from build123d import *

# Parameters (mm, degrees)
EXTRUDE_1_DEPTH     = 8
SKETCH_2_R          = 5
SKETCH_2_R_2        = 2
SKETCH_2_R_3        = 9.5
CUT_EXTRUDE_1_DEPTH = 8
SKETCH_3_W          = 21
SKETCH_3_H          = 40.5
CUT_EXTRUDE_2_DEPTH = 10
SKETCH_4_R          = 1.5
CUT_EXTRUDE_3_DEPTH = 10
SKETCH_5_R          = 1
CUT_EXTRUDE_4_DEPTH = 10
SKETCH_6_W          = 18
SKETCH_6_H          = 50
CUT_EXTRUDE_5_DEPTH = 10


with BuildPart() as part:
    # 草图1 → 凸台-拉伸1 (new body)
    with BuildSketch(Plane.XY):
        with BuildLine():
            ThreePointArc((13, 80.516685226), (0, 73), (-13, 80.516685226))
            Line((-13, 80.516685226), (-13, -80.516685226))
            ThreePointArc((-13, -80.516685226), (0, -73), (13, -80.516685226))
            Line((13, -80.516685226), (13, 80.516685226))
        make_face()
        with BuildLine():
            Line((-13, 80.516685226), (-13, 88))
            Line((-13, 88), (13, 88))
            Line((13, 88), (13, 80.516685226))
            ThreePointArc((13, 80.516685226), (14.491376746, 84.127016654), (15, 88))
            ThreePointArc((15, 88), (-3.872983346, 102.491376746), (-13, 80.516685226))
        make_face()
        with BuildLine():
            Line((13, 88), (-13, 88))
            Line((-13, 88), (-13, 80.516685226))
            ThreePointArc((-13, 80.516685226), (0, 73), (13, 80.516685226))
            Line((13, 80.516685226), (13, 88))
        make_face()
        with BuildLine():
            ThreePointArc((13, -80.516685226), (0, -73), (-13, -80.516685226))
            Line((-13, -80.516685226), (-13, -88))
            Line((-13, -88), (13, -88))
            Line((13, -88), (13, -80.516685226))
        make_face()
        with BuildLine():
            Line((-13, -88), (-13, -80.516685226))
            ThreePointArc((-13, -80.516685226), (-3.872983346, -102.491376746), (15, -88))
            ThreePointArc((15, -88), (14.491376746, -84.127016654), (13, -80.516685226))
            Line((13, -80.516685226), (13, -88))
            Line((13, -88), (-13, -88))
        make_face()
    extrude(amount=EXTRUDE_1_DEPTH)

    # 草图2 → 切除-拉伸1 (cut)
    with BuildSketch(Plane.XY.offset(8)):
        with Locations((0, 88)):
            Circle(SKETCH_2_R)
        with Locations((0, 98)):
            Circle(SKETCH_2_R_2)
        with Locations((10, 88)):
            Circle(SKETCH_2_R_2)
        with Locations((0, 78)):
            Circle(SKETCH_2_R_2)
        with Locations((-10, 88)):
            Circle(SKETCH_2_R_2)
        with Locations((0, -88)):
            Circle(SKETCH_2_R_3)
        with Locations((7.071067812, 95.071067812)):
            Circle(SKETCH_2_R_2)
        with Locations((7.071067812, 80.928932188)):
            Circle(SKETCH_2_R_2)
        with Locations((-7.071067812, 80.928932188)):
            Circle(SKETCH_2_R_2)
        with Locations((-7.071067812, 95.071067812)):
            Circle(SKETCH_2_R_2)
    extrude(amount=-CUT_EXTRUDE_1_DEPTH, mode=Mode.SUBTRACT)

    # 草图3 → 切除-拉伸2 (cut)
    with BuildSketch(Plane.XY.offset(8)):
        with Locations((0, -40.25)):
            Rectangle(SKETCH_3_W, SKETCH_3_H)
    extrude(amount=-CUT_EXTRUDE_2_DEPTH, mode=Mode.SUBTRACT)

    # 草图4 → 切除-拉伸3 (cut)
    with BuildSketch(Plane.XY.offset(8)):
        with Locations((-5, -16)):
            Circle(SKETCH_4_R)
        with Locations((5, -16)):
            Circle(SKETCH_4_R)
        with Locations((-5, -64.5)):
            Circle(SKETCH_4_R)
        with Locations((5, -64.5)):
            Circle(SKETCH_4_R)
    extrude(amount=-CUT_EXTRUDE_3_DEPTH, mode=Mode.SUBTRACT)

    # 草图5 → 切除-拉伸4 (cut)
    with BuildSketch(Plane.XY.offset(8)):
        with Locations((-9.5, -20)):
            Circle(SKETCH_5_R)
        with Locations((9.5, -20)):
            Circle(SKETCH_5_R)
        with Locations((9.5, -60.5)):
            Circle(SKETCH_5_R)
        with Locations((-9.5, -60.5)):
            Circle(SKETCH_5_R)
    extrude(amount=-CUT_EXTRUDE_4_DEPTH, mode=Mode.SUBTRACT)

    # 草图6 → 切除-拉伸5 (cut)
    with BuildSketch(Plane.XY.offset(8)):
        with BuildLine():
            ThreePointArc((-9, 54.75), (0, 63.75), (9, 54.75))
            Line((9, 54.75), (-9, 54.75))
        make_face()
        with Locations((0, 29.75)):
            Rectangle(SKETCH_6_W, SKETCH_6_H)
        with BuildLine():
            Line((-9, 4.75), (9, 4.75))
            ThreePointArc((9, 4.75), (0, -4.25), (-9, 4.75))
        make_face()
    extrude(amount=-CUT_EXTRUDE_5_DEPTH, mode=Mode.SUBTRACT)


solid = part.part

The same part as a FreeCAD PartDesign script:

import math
import FreeCAD as App
import Part
import Sketcher
from FreeCAD import Vector

doc = App.newDocument("Part")
body = doc.addObject("PartDesign::Body", "Body")

sketch1 = doc.addObject("Sketcher::SketchObject", "Sketch")
body.addObject(sketch1)
sketch1.AttachmentSupport = (doc.XY_Plane, [""])
sketch1.MapMode = "FlatFace"
sketch1.addGeometry(Part.LineSegment(Vector(-13, 81, 0), Vector(-13, -81, 0)), False)
sketch1.addGeometry(Part.ArcOfCircle(Part.Circle(Vector(0, -88, 0), Vector(0, 0, 1), 15), math.radians(150), math.radians(360)), False)
sketch1.addGeometry(Part.ArcOfCircle(Part.Circle(Vector(0, -88, 0), Vector(0, 0, 1), 15), math.radians(0), math.radians(30)), False)
sketch1.addGeometry(Part.LineSegment(Vector(13, -81, 0), Vector(13, 81, 0)), False)
sketch1.addGeometry(Part.ArcOfCircle(Part.Circle(Vector(0, 88, 0), Vector(0, 0, 1), 15), math.radians(-30), math.radians(0)), False)
sketch1.addGeometry(Part.ArcOfCircle(Part.Circle(Vector(0, 88, 0), Vector(0, 0, 1), 15), math.radians(0), math.radians(210)), False)
sketch1.addConstraint(Sketcher.Constraint("Coincident", 0, 2, 1, 1))
sketch1.addConstraint(Sketcher.Constraint("Tangent", 1, 2, 2, 1))
sketch1.addConstraint(Sketcher.Constraint("Coincident", 2, 2, 3, 1))
sketch1.addConstraint(Sketcher.Constraint("Coincident", 3, 2, 4, 1))
sketch1.addConstraint(Sketcher.Constraint("Tangent", 4, 2, 5, 1))
sketch1.addConstraint(Sketcher.Constraint("Coincident", 5, 2, 0, 1))
sketch1.addConstraint(Sketcher.Constraint("Vertical", 0))
sketch1.addConstraint(Sketcher.Constraint("Vertical", 3))
sketch1.addConstraint(Sketcher.Constraint("Equal", 1, 2))
sketch1.addConstraint(Sketcher.Constraint("Equal", 2, 4))
sketch1.addConstraint(Sketcher.Constraint("Equal", 4, 5))
sketch1.addConstraint(Sketcher.Constraint("Symmetric", 1, 3, 4, 3, -1, 1))
sketch1.addConstraint(Sketcher.Constraint("Symmetric", 0, 2, 2, 2, -2))
sketch1.addConstraint(Sketcher.Constraint("Horizontal", 2, 3, 1, 2))
sketch1.addConstraint(Sketcher.Constraint("Horizontal", 5, 3, 4, 2))
sketch1.addConstraint(Sketcher.Constraint("Radius", 1, 15.0))
sketch1.addConstraint(Sketcher.Constraint("DistanceY", 1, 3, -1, 1, 88.0))
sketch1.addConstraint(Sketcher.Constraint("DistanceX", 0, 2, -1, 1, 13.0))
pad1 = doc.addObject("PartDesign::Pad", "Pad")
body.addObject(pad1)
pad1.Profile = sketch1
pad1.Length = 8

sketch2 = doc.addObject("Sketcher::SketchObject", "Sketch001")
body.addObject(sketch2)
sketch2.AttachmentSupport = (doc.XY_Plane, [""])
sketch2.MapMode = "FlatFace"
sketch2.AttachmentOffset = App.Placement(Vector(0, 0, 8), App.Rotation())
sketch2.addGeometry(Part.Circle(Vector(0, 88, 0), Vector(0, 0, 1), 5), False)
sketch2.addGeometry(Part.Circle(Vector(0, 98, 0), Vector(0, 0, 1), 2), False)
sketch2.addGeometry(Part.Circle(Vector(10, 88, 0), Vector(0, 0, 1), 2), False)
sketch2.addGeometry(Part.Circle(Vector(0, 78, 0), Vector(0, 0, 1), 2), False)
sketch2.addGeometry(Part.Circle(Vector(-10, 88, 0), Vector(0, 0, 1), 2), False)
sketch2.addGeometry(Part.Circle(Vector(0, -88, 0), Vector(0, 0, 1), 9.5), False)
sketch2.addGeometry(Part.Circle(Vector(7.1, 95.1, 0), Vector(0, 0, 1), 2), False)
sketch2.addGeometry(Part.Circle(Vector(7.1, 80.9, 0), Vector(0, 0, 1), 2), False)
sketch2.addGeometry(Part.Circle(Vector(-7.1, 80.9, 0), Vector(0, 0, 1), 2), False)
sketch2.addGeometry(Part.Circle(Vector(-7.1, 95.1, 0), Vector(0, 0, 1), 2), False)
sketch2.addConstraint(Sketcher.Constraint("Equal", 1, 2))
sketch2.addConstraint(Sketcher.Constraint("Equal", 2, 3))
sketch2.addConstraint(Sketcher.Constraint("Equal", 3, 4))
sketch2.addConstraint(Sketcher.Constraint("Equal", 4, 6))
sketch2.addConstraint(Sketcher.Constraint("Equal", 6, 7))
sketch2.addConstraint(Sketcher.Constraint("Equal", 7, 8))
sketch2.addConstraint(Sketcher.Constraint("Equal", 8, 9))
sketch2.addConstraint(Sketcher.Constraint("Symmetric", 0, 3, 5, 3, -1, 1))
sketch2.addConstraint(Sketcher.Constraint("Symmetric", 2, 3, 4, 3, -2))
sketch2.addConstraint(Sketcher.Constraint("Symmetric", 7, 3, 8, 3, -2))
sketch2.addConstraint(Sketcher.Constraint("Symmetric", 6, 3, 9, 3, -2))
sketch2.addConstraint(Sketcher.Constraint("PointOnObject", 0, 3, -2))
sketch2.addConstraint(Sketcher.Constraint("PointOnObject", 1, 3, -2))
sketch2.addConstraint(Sketcher.Constraint("PointOnObject", 3, 3, -2))
sketch2.addConstraint(Sketcher.Constraint("Horizontal", 0, 3, 2, 3))
sketch2.addConstraint(Sketcher.Constraint("Vertical", 6, 3, 7, 3))
sketch2.addConstraint(Sketcher.Constraint("Diameter", 0, 10.0))
sketch2.addConstraint(Sketcher.Constraint("Diameter", 1, 4.0))
sketch2.addConstraint(Sketcher.Constraint("Diameter", 5, 19.0))
sketch2.addConstraint(Sketcher.Constraint("DistanceY", -1, 1, 0, 3, 88.0))
sketch2.addConstraint(Sketcher.Constraint("DistanceY", -1, 1, 1, 3, 98.0))
sketch2.addConstraint(Sketcher.Constraint("DistanceX", -1, 1, 2, 3, 10.0))
sketch2.addConstraint(Sketcher.Constraint("DistanceY", -1, 1, 3, 3, 78.0))
sketch2.addConstraint(Sketcher.Constraint("DistanceX", -1, 1, 6, 3, 7.071068))
sketch2.addConstraint(Sketcher.Constraint("DistanceY", -1, 1, 6, 3, 95.071068))
sketch2.addConstraint(Sketcher.Constraint("DistanceY", -1, 1, 7, 3, 80.928932))
pocket1 = doc.addObject("PartDesign::Pocket", "Pocket")
body.addObject(pocket1)
pocket1.Profile = sketch2
pocket1.Length = 8

sketch3 = doc.addObject("Sketcher::SketchObject", "Sketch002")
body.addObject(sketch3)
sketch3.AttachmentSupport = (doc.XY_Plane, [""])
sketch3.MapMode = "FlatFace"
sketch3.AttachmentOffset = App.Placement(Vector(0, 0, 8), App.Rotation())
sketch3.addGeometry(Part.LineSegment(Vector(-10, -20, 0), Vector(-10, -60, 0)), False)
sketch3.addGeometry(Part.LineSegment(Vector(-10, -60, 0), Vector(10, -60, 0)), False)
sketch3.addGeometry(Part.LineSegment(Vector(10, -60, 0), Vector(10, -20, 0)), False)
sketch3.addGeometry(Part.LineSegment(Vector(10, -20, 0), Vector(-10, -20, 0)), False)
sketch3.addConstraint(Sketcher.Constraint("Coincident", 0, 2, 1, 1))
sketch3.addConstraint(Sketcher.Constraint("Coincident", 1, 2, 2, 1))
sketch3.addConstraint(Sketcher.Constraint("Coincident", 2, 2, 3, 1))
sketch3.addConstraint(Sketcher.Constraint("Coincident", 3, 2, 0, 1))
sketch3.addConstraint(Sketcher.Constraint("Vertical", 0))
sketch3.addConstraint(Sketcher.Constraint("Horizontal", 1))
sketch3.addConstraint(Sketcher.Constraint("Vertical", 2))
sketch3.addConstraint(Sketcher.Constraint("Horizontal", 3))
sketch3.addConstraint(Sketcher.Constraint("DistanceX", 1, 1, 1, 2, 21.0))
sketch3.addConstraint(Sketcher.Constraint("DistanceY", 0, 2, 0, 1, 40.5))
sketch3.addConstraint(Sketcher.Constraint("DistanceY", 2, 2, -1, 1, 20.0))
sketch3.addConstraint(Sketcher.Constraint("DistanceX", 0, 2, -1, 1, 10.5))
pocket2 = doc.addObject("PartDesign::Pocket", "Pocket001")
body.addObject(pocket2)
pocket2.Profile = sketch3
pocket2.Length = 10

sketch4 = doc.addObject("Sketcher::SketchObject", "Sketch003")
body.addObject(sketch4)
sketch4.AttachmentSupport = (doc.XY_Plane, [""])
sketch4.MapMode = "FlatFace"
sketch4.AttachmentOffset = App.Placement(Vector(0, 0, 8), App.Rotation())
sketch4.addGeometry(Part.Circle(Vector(-5, -16, 0), Vector(0, 0, 1), 1.5), False)
sketch4.addGeometry(Part.Circle(Vector(5, -16, 0), Vector(0, 0, 1), 1.5), False)
sketch4.addGeometry(Part.Circle(Vector(-5, -64.5, 0), Vector(0, 0, 1), 1.5), False)
sketch4.addGeometry(Part.Circle(Vector(5, -64.5, 0), Vector(0, 0, 1), 1.5), False)
sketch4.addConstraint(Sketcher.Constraint("Equal", 0, 1))
sketch4.addConstraint(Sketcher.Constraint("Equal", 1, 2))
sketch4.addConstraint(Sketcher.Constraint("Equal", 2, 3))
sketch4.addConstraint(Sketcher.Constraint("Symmetric", 0, 3, 1, 3, -2))
sketch4.addConstraint(Sketcher.Constraint("Symmetric", 2, 3, 3, 3, -2))
sketch4.addConstraint(Sketcher.Constraint("Vertical", 0, 3, 2, 3))
sketch4.addConstraint(Sketcher.Constraint("Diameter", 0, 3.0))
sketch4.addConstraint(Sketcher.Constraint("DistanceX", 0, 3, -1, 1, 5.0))
sketch4.addConstraint(Sketcher.Constraint("DistanceY", 0, 3, -1, 1, 16.0))
sketch4.addConstraint(Sketcher.Constraint("DistanceY", 2, 3, -1, 1, 64.5))
pocket3 = doc.addObject("PartDesign::Pocket", "Pocket002")
body.addObject(pocket3)
pocket3.Profile = sketch4
pocket3.Length = 10

sketch5 = doc.addObject("Sketcher::SketchObject", "Sketch004")
body.addObject(sketch5)
sketch5.AttachmentSupport = (doc.XY_Plane, [""])
sketch5.MapMode = "FlatFace"
sketch5.AttachmentOffset = App.Placement(Vector(0, 0, 8), App.Rotation())
sketch5.addGeometry(Part.Circle(Vector(-9.5, -20, 0), Vector(0, 0, 1), 1), False)
sketch5.addGeometry(Part.Circle(Vector(9.5, -20, 0), Vector(0, 0, 1), 1), False)
sketch5.addGeometry(Part.Circle(Vector(9.5, -60.5, 0), Vector(0, 0, 1), 1), False)
sketch5.addGeometry(Part.Circle(Vector(-9.5, -60.5, 0), Vector(0, 0, 1), 1), False)
sketch5.addConstraint(Sketcher.Constraint("Equal", 0, 1))
sketch5.addConstraint(Sketcher.Constraint("Equal", 1, 2))
sketch5.addConstraint(Sketcher.Constraint("Equal", 2, 3))
sketch5.addConstraint(Sketcher.Constraint("Symmetric", 0, 3, 1, 3, -2))
sketch5.addConstraint(Sketcher.Constraint("Symmetric", 2, 3, 3, 3, -2))
sketch5.addConstraint(Sketcher.Constraint("Vertical", 1, 3, 2, 3))
sketch5.addConstraint(Sketcher.Constraint("Diameter", 0, 2.0))
sketch5.addConstraint(Sketcher.Constraint("DistanceY", 0, 3, -1, 1, 20.0))
sketch5.addConstraint(Sketcher.Constraint("DistanceX", 0, 3, 1, 3, 19.0))
sketch5.addConstraint(Sketcher.Constraint("DistanceY", 2, 3, -1, 1, 60.5))
pocket4 = doc.addObject("PartDesign::Pocket", "Pocket003")
body.addObject(pocket4)
pocket4.Profile = sketch5
pocket4.Length = 10

sketch6 = doc.addObject("Sketcher::SketchObject", "Sketch005")
body.addObject(sketch6)
sketch6.AttachmentSupport = (doc.XY_Plane, [""])
sketch6.MapMode = "FlatFace"
sketch6.AttachmentOffset = App.Placement(Vector(0, 0, 8), App.Rotation())
sketch6.addGeometry(Part.ArcOfCircle(Part.Circle(Vector(0, 55, 0), Vector(0, 0, 1), 9), math.radians(0), math.radians(180)), False)
sketch6.addGeometry(Part.LineSegment(Vector(-9, 55, 0), Vector(-9, 5, 0)), False)
sketch6.addGeometry(Part.ArcOfCircle(Part.Circle(Vector(0, 5, 0), Vector(0, 0, 1), 9), math.radians(180), math.radians(360)), False)
sketch6.addGeometry(Part.LineSegment(Vector(9, 5, 0), Vector(9, 55, 0)), False)
sketch6.addConstraint(Sketcher.Constraint("Tangent", 0, 2, 1, 1))
sketch6.addConstraint(Sketcher.Constraint("Tangent", 1, 2, 2, 1))
sketch6.addConstraint(Sketcher.Constraint("Tangent", 2, 2, 3, 1))
sketch6.addConstraint(Sketcher.Constraint("Tangent", 3, 2, 0, 1))
sketch6.addConstraint(Sketcher.Constraint("Vertical", 1))
sketch6.addConstraint(Sketcher.Constraint("Vertical", 3))
sketch6.addConstraint(Sketcher.Constraint("PointOnObject", 0, 3, -2))
sketch6.addConstraint(Sketcher.Constraint("Radius", 0, 9.0))
sketch6.addConstraint(Sketcher.Constraint("DistanceY", 1, 2, 1, 1, 50.0))
sketch6.addConstraint(Sketcher.Constraint("DistanceY", -1, 1, 0, 3, 54.75))
pocket5 = doc.addObject("PartDesign::Pocket", "Pocket004")
body.addObject(pocket5)
pocket5.Profile = sketch6
pocket5.Length = 10

doc.recompute()
